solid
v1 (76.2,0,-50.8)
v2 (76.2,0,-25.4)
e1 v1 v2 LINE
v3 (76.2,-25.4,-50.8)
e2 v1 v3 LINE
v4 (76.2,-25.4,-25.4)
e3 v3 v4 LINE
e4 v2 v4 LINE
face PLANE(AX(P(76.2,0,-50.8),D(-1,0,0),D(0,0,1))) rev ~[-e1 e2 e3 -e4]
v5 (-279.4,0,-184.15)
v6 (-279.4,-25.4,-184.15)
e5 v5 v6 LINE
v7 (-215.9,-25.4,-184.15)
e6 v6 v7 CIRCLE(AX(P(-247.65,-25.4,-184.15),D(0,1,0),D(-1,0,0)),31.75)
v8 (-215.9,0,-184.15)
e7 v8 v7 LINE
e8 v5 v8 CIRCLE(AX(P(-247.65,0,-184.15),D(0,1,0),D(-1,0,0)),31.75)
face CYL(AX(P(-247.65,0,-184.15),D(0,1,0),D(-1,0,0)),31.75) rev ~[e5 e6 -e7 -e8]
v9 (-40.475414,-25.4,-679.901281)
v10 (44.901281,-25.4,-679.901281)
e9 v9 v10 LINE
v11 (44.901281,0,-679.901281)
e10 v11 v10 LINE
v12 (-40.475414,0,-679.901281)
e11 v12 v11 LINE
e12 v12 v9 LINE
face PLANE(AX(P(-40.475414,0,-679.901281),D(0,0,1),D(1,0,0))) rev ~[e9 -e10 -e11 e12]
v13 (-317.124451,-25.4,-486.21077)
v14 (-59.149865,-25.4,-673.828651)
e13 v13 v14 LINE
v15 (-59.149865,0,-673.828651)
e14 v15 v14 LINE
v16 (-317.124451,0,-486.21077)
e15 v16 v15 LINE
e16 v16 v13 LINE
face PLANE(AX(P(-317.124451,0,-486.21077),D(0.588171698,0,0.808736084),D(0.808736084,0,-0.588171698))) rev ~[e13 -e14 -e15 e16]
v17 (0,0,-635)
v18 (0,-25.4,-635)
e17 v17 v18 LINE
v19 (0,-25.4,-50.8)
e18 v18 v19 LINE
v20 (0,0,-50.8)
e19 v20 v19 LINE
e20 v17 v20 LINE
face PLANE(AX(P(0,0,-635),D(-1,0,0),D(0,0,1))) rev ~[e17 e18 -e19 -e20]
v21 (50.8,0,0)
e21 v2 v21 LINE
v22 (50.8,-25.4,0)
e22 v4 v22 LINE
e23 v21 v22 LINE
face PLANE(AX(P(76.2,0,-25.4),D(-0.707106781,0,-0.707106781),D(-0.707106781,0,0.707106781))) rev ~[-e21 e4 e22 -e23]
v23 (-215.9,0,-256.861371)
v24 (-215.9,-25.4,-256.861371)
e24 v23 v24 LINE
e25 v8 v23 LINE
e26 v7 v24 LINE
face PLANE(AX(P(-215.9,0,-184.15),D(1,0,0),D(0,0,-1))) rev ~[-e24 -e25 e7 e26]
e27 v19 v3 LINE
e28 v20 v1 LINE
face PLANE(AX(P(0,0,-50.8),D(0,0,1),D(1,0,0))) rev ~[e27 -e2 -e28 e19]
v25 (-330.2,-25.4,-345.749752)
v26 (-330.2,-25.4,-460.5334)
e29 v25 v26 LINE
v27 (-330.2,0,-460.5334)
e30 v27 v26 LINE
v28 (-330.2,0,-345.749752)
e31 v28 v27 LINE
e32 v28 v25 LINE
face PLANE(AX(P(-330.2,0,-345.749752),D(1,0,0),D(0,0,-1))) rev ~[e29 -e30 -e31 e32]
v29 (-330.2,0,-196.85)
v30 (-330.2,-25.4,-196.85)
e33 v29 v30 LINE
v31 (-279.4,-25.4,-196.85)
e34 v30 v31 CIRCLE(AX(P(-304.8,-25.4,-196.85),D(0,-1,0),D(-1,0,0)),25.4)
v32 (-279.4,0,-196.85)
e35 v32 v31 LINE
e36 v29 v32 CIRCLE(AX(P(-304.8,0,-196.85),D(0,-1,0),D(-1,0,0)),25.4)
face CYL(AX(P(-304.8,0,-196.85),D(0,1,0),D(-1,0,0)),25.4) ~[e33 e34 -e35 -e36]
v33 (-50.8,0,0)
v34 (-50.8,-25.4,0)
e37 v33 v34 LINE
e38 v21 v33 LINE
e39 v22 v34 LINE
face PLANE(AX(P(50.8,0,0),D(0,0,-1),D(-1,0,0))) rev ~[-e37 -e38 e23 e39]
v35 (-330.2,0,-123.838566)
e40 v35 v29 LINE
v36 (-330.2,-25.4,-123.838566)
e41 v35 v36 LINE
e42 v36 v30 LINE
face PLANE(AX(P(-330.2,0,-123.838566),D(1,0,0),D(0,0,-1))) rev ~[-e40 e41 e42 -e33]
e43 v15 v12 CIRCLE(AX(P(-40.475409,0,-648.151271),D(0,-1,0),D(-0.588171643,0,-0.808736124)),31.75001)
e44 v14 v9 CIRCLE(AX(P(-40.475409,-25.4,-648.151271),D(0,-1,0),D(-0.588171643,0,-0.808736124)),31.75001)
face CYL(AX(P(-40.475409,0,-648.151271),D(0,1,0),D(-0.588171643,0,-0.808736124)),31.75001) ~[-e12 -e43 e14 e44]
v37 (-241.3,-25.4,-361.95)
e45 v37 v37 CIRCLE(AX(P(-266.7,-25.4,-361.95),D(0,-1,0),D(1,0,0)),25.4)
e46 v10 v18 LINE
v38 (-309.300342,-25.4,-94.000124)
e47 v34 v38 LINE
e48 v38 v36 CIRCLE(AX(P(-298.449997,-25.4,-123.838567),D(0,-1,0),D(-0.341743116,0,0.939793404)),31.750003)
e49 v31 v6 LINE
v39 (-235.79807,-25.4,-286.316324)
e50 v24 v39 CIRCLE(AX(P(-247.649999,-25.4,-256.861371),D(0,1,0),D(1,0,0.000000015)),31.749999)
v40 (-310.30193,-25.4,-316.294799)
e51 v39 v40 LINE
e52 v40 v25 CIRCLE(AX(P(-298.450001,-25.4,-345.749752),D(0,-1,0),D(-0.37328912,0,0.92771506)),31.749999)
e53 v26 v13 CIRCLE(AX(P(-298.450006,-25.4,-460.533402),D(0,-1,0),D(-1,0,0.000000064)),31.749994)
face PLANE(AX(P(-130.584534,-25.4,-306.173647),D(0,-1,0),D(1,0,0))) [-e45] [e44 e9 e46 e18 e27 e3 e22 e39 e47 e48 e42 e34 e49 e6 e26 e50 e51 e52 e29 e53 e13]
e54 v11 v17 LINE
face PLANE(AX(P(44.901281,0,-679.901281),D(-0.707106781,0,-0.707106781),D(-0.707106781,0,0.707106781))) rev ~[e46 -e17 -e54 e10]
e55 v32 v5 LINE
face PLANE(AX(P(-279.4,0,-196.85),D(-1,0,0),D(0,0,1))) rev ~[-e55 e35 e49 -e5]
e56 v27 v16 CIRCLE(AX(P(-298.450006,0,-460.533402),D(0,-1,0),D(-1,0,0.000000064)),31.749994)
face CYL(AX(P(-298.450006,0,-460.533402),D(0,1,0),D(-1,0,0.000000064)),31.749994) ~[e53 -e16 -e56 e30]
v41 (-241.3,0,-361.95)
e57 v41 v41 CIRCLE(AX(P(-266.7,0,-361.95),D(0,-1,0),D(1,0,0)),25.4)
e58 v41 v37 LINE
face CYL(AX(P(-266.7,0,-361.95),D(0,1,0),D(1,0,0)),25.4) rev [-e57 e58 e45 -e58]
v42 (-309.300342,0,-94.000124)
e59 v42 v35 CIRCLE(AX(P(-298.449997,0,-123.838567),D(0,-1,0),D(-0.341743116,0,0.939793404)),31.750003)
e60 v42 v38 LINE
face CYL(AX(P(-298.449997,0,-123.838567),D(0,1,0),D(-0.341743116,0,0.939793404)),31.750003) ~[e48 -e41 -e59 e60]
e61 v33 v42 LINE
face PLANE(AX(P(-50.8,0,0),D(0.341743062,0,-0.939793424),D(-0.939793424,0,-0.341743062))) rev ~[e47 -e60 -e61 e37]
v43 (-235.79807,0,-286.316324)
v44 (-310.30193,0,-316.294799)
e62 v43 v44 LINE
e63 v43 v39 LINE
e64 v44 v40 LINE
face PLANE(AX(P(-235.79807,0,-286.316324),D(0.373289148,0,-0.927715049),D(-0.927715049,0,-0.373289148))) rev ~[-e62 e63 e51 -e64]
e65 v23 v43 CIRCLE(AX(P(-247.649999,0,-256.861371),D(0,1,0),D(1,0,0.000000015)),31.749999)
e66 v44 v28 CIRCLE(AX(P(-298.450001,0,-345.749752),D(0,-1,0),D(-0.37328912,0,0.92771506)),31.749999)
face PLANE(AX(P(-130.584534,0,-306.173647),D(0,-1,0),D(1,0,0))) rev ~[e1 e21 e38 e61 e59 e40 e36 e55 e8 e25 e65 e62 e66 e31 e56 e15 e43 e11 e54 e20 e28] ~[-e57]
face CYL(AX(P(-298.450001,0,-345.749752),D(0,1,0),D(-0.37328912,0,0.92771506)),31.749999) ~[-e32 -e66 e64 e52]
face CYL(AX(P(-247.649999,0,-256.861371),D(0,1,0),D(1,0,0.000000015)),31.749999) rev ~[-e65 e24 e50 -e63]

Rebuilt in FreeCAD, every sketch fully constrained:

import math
import FreeCAD as App
import Part
import Sketcher
from FreeCAD import Vector
Q = App.Units.Quantity

doc = App.newDocument("Part")
body = doc.addObject("PartDesign::Body", "Body")

# Sketch on XZ plane
sketch1 = body.newObject("Sketcher::SketchObject", "Sketch")
sketch1.AttachmentSupport = (doc.getObject("XZ_Plane"), [""])
sketch1.MapMode = "FlatFace"
sketch1.addGeometry(Part.ArcOfCircle(Part.Circle(Vector(-248, -184, 0), Vector(0, 0, 1), 32), math.radians(0), math.radians(180)), False)
sketch1.addGeometry(Part.LineSegment(Vector(-216, -184, 0), Vector(-216, -257, 0)), False)
sketch1.addGeometry(Part.ArcOfCircle(Part.Circle(Vector(-248, -257, 0), Vector(0, 0, 1), 32), math.radians(-68), math.radians(0)), False)
sketch1.addGeometry(Part.LineSegment(Vector(-236, -286, 0), Vector(-310, -316, 0)), False)
sketch1.addGeometry(Part.ArcOfCircle(Part.Circle(Vector(-298, -346, 0), Vector(0, 0, 1), 32), math.radians(112), math.radians(180)), False)
sketch1.addGeometry(Part.LineSegment(Vector(-330, -346, 0), Vector(-330, -461, 0)), False)
sketch1.addGeometry(Part.ArcOfCircle(Part.Circle(Vector(-298, -461, 0), Vector(0, 0, 1), 32), math.radians(180), math.radians(234)), False)
sketch1.addGeometry(Part.LineSegment(Vector(-317, -486, 0), Vector(-59, -674, 0)), False)
sketch1.addGeometry(Part.ArcOfCircle(Part.Circle(Vector(-40, -648, 0), Vector(0, 0, 1), 32), math.radians(-126), math.radians(-90)), False)
sketch1.addGeometry(Part.LineSegment(Vector(-40, -680, 0), Vector(45, -680, 0)), False)
sketch1.addGeometry(Part.LineSegment(Vector(45, -680, 0), Vector(0, -635, 0)), False)
sketch1.addGeometry(Part.LineSegment(Vector(0, -635, 0), Vector(0, -51, 0)), False)
sketch1.addGeometry(Part.LineSegment(Vector(0, -51, 0), Vector(76, -51, 0)), False)
sketch1.addGeometry(Part.LineSegment(Vector(76, -51, 0), Vector(76, -25, 0)), False)
sketch1.addGeometry(Part.LineSegment(Vector(76, -25, 0), Vector(51, 0, 0)), False)
sketch1.addGeometry(Part.LineSegment(Vector(51, 0, 0), Vector(-51, 0, 0)), False)
sketch1.addGeometry(Part.LineSegment(Vector(-51, 0, 0), Vector(-309, -94, 0)), False)
sketch1.addGeometry(Part.ArcOfCircle(Part.Circle(Vector(-298, -124, 0), Vector(0, 0, 1), 32), math.radians(110), math.radians(180)), False)
sketch1.addGeometry(Part.LineSegment(Vector(-330, -124, 0), Vector(-330, -197, 0)), False)
sketch1.addGeometry(Part.ArcOfCircle(Part.Circle(Vector(-305, -197, 0), Vector(0, 0, 1), 25), math.radians(180), math.radians(360)), False)
sketch1.addGeometry(Part.LineSegment(Vector(-279, -197, 0), Vector(-279, -184, 0)), False)
sketch1.addGeometry(Part.Circle(Vector(-267, -362, 0), Vector(0, 0, 1), 25), False)
sketch1.addConstraint(Sketcher.Constraint("Tangent", 0, 1, 1, 1))
sketch1.addConstraint(Sketcher.Constraint("Tangent", 1, 2, 2, 2))
sketch1.addConstraint(Sketcher.Constraint("Tangent", 2, 1, 3, 1))
sketch1.addConstraint(Sketcher.Constraint("Tangent", 3, 2, 4, 1))
sketch1.addConstraint(Sketcher.Constraint("Tangent", 4, 2, 5, 1))
sketch1.addConstraint(Sketcher.Constraint("Tangent", 5, 2, 6, 1))
sketch1.addConstraint(Sketcher.Constraint("Tangent", 6, 2, 7, 1))
sketch1.addConstraint(Sketcher.Constraint("Tangent", 7, 2, 8, 1))
sketch1.addConstraint(Sketcher.Constraint("Tangent", 8, 2, 9, 1))
sketch1.addConstraint(Sketcher.Constraint("Coincident", 9, 2, 10, 1))
sketch1.addConstraint(Sketcher.Constraint("Coincident", 10, 2, 11, 1))
sketch1.addConstraint(Sketcher.Constraint("Coincident", 11, 2, 12, 1))
sketch1.addConstraint(Sketcher.Constraint("Coincident", 12, 2, 13, 1))
sketch1.addConstraint(Sketcher.Constraint("Coincident", 13, 2, 14, 1))
sketch1.addConstraint(Sketcher.Constraint("Coincident", 14, 2, 15, 1))
sketch1.addConstraint(Sketcher.Constraint("Coincident", 15, 2, 16, 1))
sketch1.addConstraint(Sketcher.Constraint("Tangent", 16, 2, 17, 1))
sketch1.addConstraint(Sketcher.Constraint("Tangent", 17, 2, 18, 1))
sketch1.addConstraint(Sketcher.Constraint("Tangent", 18, 2, 19, 1))
sketch1.addConstraint(Sketcher.Constraint("Tangent", 19, 2, 20, 1))
sketch1.addConstraint(Sketcher.Constraint("Tangent", 20, 2, 0, 2))
sketch1.addConstraint(Sketcher.Constraint("Vertical", 1))
sketch1.addConstraint(Sketcher.Constraint("Vertical", 5))
sketch1.addConstraint(Sketcher.Constraint("Horizontal", 9))
sketch1.addConstraint(Sketcher.Constraint("Vertical", 11))
sketch1.addConstraint(Sketcher.Constraint("Horizontal", 12))
sketch1.addConstraint(Sketcher.Constraint("Vertical", 13))
sketch1.addConstraint(Sketcher.Constraint("Horizontal", 15))
sketch1.addConstraint(Sketcher.Constraint("Vertical", 18))
sketch1.addConstraint(Sketcher.Constraint("Vertical", 20))
sketch1.addConstraint(Sketcher.Constraint("Equal", 0, 2))
sketch1.addConstraint(Sketcher.Constraint("Equal", 2, 4))
sketch1.addConstraint(Sketcher.Constraint("Equal", 19, 21))
sketch1.addConstraint(Sketcher.Constraint("Symmetric", 14, 2, 15, 2, -1, 1))
sketch1.addConstraint(Sketcher.Constraint("PointOnObject", 10, 2, -2))
sketch1.addConstraint(Sketcher.Constraint("Parallel", 10, 14))
sketch1.addConstraint(Sketcher.Constraint("Vertical", 5, 2, 17, 2))
sketch1.addConstraint(Sketcher.Constraint("Diameter", 21, Q("2 in")))
sketch1.addConstraint(Sketcher.Constraint("DistanceX", 12, 1, 12, 2, Q("3 in")))
sketch1.addConstraint(Sketcher.Constraint("DistanceX", 15, 2, 15, 1, Q("4 in")))
sketch1.addConstraint(Sketcher.Constraint("DistanceY", 11, 1, 11, 2, Q("23 in")))
sketch1.addConstraint(Sketcher.Constraint("DistanceY", 13, 1, 13, 2, Q("1 in")))
sketch1.addConstraint(Sketcher.Constraint("Radius", 0, Q("1.25 in")))
sketch1.addConstraint(Sketcher.Constraint("Radius", 17, Q("1.2500001 in")))
sketch1.addConstraint(Sketcher.Constraint("DistanceY", 20, 1, 20, 2, Q("0.5 in")))
sketch1.addConstraint(Sketcher.Constraint("DistanceX", 19, 3, -1, 1, Q("12 in")))
sketch1.addConstraint(Sketcher.Constraint("DistanceY", 10, 2, -1, 1, Q("25 in")))
sketch1.addConstraint(Sketcher.Constraint("DistanceY", 21, 3, 0, 3, Q("7 in")))
sketch1.addConstraint(Sketcher.Constraint("DistanceX", 21, 3, 1, 2, Q("2 in")))
sketch1.addConstraint(Sketcher.Constraint("Distance", 10, Q("2.5 in")))
sketch1.addConstraint(Sketcher.Constraint("DistanceY", 0, 3, -1, 1, Q("7.25 in")))
sketch1.addConstraint(Sketcher.Constraint("Radius", 8, 31.75001))
sketch1.addConstraint(Sketcher.Constraint("Radius", 6, 31.749994))
sketch1.addConstraint(Sketcher.Constraint("DistanceY", 1, 2, 1, 1, 72.711371))
sketch1.addConstraint(Sketcher.Constraint("DistanceY", 3, 2, -1, 1, 316.294799))
sketch1.addConstraint(Sketcher.Constraint("DistanceY", 5, 2, -1, 1, 460.5334))
sketch1.addConstraint(Sketcher.Constraint("Distance", 16, 275.060812))
sketch1.addConstraint(Sketcher.Constraint("DistanceX", 9, 1, 9, 2, 85.376695))
pad1 = body.newObject("PartDesign::Pad", "Pad")
pad1.Profile = sketch1
pad1.Length = Q("1 in")

doc.recompute()
